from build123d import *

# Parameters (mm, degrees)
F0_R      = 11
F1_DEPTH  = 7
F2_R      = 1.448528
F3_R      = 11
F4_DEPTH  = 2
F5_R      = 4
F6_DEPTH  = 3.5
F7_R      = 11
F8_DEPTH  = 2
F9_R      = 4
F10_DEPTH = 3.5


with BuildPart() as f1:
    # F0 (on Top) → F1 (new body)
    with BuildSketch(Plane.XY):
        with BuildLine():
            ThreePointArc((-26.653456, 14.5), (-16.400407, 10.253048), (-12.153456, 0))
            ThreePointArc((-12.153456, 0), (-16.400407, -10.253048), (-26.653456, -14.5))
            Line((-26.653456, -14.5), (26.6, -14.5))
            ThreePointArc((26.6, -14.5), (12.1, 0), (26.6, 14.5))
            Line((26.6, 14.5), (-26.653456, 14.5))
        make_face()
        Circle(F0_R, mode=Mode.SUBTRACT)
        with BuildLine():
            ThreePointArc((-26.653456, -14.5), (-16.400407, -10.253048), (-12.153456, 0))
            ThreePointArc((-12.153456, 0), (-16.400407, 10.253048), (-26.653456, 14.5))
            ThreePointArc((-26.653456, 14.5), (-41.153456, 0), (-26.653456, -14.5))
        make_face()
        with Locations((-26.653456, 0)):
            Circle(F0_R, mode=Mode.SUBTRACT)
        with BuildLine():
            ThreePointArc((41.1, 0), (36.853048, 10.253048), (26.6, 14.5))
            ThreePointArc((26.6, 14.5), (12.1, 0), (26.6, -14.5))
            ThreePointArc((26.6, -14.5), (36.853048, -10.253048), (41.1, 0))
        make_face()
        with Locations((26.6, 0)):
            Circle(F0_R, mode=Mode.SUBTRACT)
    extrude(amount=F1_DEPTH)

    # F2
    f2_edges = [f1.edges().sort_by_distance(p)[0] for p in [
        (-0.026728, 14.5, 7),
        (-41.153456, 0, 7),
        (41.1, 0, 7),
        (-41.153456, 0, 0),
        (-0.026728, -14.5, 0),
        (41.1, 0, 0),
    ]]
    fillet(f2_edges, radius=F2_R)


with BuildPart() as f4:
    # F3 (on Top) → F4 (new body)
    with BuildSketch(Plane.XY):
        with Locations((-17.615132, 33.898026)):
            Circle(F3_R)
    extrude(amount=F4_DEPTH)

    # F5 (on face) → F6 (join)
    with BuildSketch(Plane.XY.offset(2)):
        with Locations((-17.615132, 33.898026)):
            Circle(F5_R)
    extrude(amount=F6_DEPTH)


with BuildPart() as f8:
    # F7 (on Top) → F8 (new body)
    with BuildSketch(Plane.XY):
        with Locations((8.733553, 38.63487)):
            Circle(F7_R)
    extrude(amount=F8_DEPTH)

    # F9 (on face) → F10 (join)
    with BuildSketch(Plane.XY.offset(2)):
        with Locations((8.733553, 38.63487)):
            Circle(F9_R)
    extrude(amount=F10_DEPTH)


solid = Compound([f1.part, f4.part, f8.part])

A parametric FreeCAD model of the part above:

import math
import FreeCAD as App
import Part
import Sketcher

V = App.Vector
Q = App.Units.Quantity


def edges_at(feature, points):
    """Names of the edges that pass closest to the given points."""
    edges = feature.Shape.Edges
    near = lambda p: min(range(len(edges)), key=lambda i: edges[i].distToShape(Part.Vertex(*p))[0])
    return sorted({f"Edge{near(p) + 1}" for p in points})

doc = App.newDocument("Part")
body = doc.addObject("PartDesign::Body", "Body")

# Sketch on XY plane
sketch1 = body.newObject("Sketcher::SketchObject", "Sketch")
sketch1.AttachmentSupport = (doc.getObject("XY_Plane"), [""])
sketch1.MapMode = "FlatFace"
sketch1.addGeometry(Part.LineSegment(V(27, 14, 0), V(-27, 14, 0)), False)
sketch1.addGeometry(Part.ArcOfCircle(Part.Circle(V(-27, 0, 0), V(0, 0, 1), 14), math.radians(90), math.radians(270)), False)
sketch1.addGeometry(Part.LineSegment(V(-27, -14, 0), V(27, -14, 0)), False)
sketch1.addGeometry(Part.ArcOfCircle(Part.Circle(V(27, 0, 0), V(0, 0, 1), 15), math.radians(-90), math.radians(0)), False)
sketch1.addGeometry(Part.ArcOfCircle(Part.Circle(V(27, 0, 0), V(0, 0, 1), 15), math.radians(0), math.radians(90)), False)
sketch1.addGeometry(Part.Circle(V(-27, 0, 0), V(0, 0, 1), 11), False)
sketch1.addGeometry(Part.Circle(V(0, 0, 0), V(0, 0, 1), 11), False)
sketch1.addGeometry(Part.Circle(V(27, 0, 0), V(0, 0, 1), 11), False)
sketch1.addConstraint(Sketcher.Constraint("Tangent", 0, 2, 1, 1))
sketch1.addConstraint(Sketcher.Constraint("Tangent", 1, 2, 2, 1))
sketch1.addConstraint(Sketcher.Constraint("Tangent", 2, 2, 3, 1))
sketch1.addConstraint(Sketcher.Constraint("Tangent", 3, 2, 4, 1))
sketch1.addConstraint(Sketcher.Constraint("Tangent", 4, 2, 0, 1))
sketch1.addConstraint(Sketcher.Constraint("Horizontal", 0))
sketch1.addConstraint(Sketcher.Constraint("Horizontal", 2))
sketch1.addConstraint(Sketcher.Constraint("Coincident", 6, 3, -1, 1))
sketch1.addConstraint(Sketcher.Constraint("Coincident", 5, 3, 1, 3))
sketch1.addConstraint(Sketcher.Constraint("Coincident", 7, 3, 3, 3))
sketch1.addConstraint(Sketcher.Constraint("Equal", 1, 3))
sketch1.addConstraint(Sketcher.Constraint("Equal", 5, 6))
sketch1.addConstraint(Sketcher.Constraint("Equal", 6, 7))
sketch1.addConstraint(Sketcher.Constraint("PointOnObject", 1, 3, -1))
sketch1.addConstraint(Sketcher.Constraint("PointOnObject", 3, 2, -1))
sketch1.addConstraint(Sketcher.Constraint("Diameter", 5, Q("22 mm")))
sketch1.addConstraint(Sketcher.Constraint("Radius", 1, Q("14.5 mm")))
sketch1.addConstraint(Sketcher.Constraint("DistanceX", -1, 1, 3, 3, Q("26.599999 mm")))
sketch1.addConstraint(Sketcher.Constraint("DistanceX", 0, 2, 0, 1, Q("53.253456 mm")))
pad1 = body.newObject("PartDesign::Pad", "Pad")
pad1.Profile = sketch1
pad1.Length = 7
doc.recompute()

fillet = body.newObject("PartDesign::Fillet", "Fillet")
fillet.Base = (pad1, edges_at(pad1, [
    (-0.027, 14.5, 7),
    (-41.153, 0, 7),
    (41.1, 0, 3.5),
    (-41.153, 0, 0),
    (-0.027, -14.5, 0),
    (41.1, 0, 3.5),
]))
fillet.Radius = 1.448528
body2 = doc.addObject("PartDesign::Body", "Body001")

# Sketch on XY plane
sketch2 = body2.newObject("Sketcher::SketchObject", "Sketch001")
sketch2.AttachmentSupport = (doc.getObject("XY_Plane001"), [""])
sketch2.MapMode = "FlatFace"
sketch2.addGeometry(Part.Circle(V(-18, 34, 0), V(0, 0, 1), 11), False)
sketch2.addConstraint(Sketcher.Constraint("Diameter", 0, Q("22 mm")))
sketch2.addConstraint(Sketcher.Constraint("DistanceX", 0, 3, -1, 1, Q("17.615132 mm")))
sketch2.addConstraint(Sketcher.Constraint("DistanceY", -1, 1, 0, 3, Q("33.898026 mm")))
pad2 = body2.newObject("PartDesign::Pad", "Pad001")
pad2.Profile = sketch2
pad2.Length = 2

# Sketch on XY plane
sketch3 = body2.newObject("Sketcher::SketchObject", "Sketch002")
sketch3.AttachmentSupport = (doc.getObject("XY_Plane001"), [""])
sketch3.MapMode = "FlatFace"
sketch3.AttachmentOffset = App.Placement(V(0, 0, 2), App.Rotation())
sketch3.addGeometry(Part.Circle(V(-17.6, 33.9, 0), V(0, 0, 1), 4), False)
sketch3.addConstraint(Sketcher.Constraint("Diameter", 0, Q("8 mm")))
sketch3.addConstraint(Sketcher.Constraint("DistanceX", 0, 3, -1, 1, Q("17.615132 mm")))
sketch3.addConstraint(Sketcher.Constraint("DistanceY", -1, 1, 0, 3, Q("33.898026 mm")))
pad3 = body2.newObject("PartDesign::Pad", "Pad002")
pad3.Profile = sketch3
pad3.Length = 3.5
body3 = doc.addObject("PartDesign::Body", "Body002")

# Sketch on XY plane
sketch4 = body3.newObject("Sketcher::SketchObject", "Sketch003")
sketch4.AttachmentSupport = (doc.getObject("XY_Plane002"), [""])
sketch4.MapMode = "FlatFace"
sketch4.addGeometry(Part.Circle(V(9, 39, 0), V(0, 0, 1), 11), False)
sketch4.addConstraint(Sketcher.Constraint("Diameter", 0, Q("22 mm")))
sketch4.addConstraint(Sketcher.Constraint("DistanceY", -1, 1, 0, 3, Q("38.63487 mm")))
sketch4.addConstraint(Sketcher.Constraint("DistanceX", -1, 1, 0, 3, Q("8.733553 mm")))
pad4 = body3.newObject("PartDesign::Pad", "Pad003")
pad4.Profile = sketch4
pad4.Length = 2

# Sketch on XY plane
sketch5 = body3.newObject("Sketcher::SketchObject", "Sketch004")
sketch5.AttachmentSupport = (doc.getObject("XY_Plane002"), [""])
sketch5.MapMode = "FlatFace"
sketch5.AttachmentOffset = App.Placement(V(0, 0, 2), App.Rotation())
sketch5.addGeometry(Part.Circle(V(8.7, 38.6, 0), V(0, 0, 1), 4), False)
sketch5.addConstraint(Sketcher.Constraint("Diameter", 0, Q("8 mm")))
sketch5.addConstraint(Sketcher.Constraint("DistanceY", -1, 1, 0, 3, Q("38.63487 mm")))
sketch5.addConstraint(Sketcher.Constraint("DistanceX", -1, 1, 0, 3, Q("8.733553 mm")))
pad5 = body3.newObject("PartDesign::Pad", "Pad004")
pad5.Profile = sketch5
pad5.Length = 3.5

doc.recompute()
